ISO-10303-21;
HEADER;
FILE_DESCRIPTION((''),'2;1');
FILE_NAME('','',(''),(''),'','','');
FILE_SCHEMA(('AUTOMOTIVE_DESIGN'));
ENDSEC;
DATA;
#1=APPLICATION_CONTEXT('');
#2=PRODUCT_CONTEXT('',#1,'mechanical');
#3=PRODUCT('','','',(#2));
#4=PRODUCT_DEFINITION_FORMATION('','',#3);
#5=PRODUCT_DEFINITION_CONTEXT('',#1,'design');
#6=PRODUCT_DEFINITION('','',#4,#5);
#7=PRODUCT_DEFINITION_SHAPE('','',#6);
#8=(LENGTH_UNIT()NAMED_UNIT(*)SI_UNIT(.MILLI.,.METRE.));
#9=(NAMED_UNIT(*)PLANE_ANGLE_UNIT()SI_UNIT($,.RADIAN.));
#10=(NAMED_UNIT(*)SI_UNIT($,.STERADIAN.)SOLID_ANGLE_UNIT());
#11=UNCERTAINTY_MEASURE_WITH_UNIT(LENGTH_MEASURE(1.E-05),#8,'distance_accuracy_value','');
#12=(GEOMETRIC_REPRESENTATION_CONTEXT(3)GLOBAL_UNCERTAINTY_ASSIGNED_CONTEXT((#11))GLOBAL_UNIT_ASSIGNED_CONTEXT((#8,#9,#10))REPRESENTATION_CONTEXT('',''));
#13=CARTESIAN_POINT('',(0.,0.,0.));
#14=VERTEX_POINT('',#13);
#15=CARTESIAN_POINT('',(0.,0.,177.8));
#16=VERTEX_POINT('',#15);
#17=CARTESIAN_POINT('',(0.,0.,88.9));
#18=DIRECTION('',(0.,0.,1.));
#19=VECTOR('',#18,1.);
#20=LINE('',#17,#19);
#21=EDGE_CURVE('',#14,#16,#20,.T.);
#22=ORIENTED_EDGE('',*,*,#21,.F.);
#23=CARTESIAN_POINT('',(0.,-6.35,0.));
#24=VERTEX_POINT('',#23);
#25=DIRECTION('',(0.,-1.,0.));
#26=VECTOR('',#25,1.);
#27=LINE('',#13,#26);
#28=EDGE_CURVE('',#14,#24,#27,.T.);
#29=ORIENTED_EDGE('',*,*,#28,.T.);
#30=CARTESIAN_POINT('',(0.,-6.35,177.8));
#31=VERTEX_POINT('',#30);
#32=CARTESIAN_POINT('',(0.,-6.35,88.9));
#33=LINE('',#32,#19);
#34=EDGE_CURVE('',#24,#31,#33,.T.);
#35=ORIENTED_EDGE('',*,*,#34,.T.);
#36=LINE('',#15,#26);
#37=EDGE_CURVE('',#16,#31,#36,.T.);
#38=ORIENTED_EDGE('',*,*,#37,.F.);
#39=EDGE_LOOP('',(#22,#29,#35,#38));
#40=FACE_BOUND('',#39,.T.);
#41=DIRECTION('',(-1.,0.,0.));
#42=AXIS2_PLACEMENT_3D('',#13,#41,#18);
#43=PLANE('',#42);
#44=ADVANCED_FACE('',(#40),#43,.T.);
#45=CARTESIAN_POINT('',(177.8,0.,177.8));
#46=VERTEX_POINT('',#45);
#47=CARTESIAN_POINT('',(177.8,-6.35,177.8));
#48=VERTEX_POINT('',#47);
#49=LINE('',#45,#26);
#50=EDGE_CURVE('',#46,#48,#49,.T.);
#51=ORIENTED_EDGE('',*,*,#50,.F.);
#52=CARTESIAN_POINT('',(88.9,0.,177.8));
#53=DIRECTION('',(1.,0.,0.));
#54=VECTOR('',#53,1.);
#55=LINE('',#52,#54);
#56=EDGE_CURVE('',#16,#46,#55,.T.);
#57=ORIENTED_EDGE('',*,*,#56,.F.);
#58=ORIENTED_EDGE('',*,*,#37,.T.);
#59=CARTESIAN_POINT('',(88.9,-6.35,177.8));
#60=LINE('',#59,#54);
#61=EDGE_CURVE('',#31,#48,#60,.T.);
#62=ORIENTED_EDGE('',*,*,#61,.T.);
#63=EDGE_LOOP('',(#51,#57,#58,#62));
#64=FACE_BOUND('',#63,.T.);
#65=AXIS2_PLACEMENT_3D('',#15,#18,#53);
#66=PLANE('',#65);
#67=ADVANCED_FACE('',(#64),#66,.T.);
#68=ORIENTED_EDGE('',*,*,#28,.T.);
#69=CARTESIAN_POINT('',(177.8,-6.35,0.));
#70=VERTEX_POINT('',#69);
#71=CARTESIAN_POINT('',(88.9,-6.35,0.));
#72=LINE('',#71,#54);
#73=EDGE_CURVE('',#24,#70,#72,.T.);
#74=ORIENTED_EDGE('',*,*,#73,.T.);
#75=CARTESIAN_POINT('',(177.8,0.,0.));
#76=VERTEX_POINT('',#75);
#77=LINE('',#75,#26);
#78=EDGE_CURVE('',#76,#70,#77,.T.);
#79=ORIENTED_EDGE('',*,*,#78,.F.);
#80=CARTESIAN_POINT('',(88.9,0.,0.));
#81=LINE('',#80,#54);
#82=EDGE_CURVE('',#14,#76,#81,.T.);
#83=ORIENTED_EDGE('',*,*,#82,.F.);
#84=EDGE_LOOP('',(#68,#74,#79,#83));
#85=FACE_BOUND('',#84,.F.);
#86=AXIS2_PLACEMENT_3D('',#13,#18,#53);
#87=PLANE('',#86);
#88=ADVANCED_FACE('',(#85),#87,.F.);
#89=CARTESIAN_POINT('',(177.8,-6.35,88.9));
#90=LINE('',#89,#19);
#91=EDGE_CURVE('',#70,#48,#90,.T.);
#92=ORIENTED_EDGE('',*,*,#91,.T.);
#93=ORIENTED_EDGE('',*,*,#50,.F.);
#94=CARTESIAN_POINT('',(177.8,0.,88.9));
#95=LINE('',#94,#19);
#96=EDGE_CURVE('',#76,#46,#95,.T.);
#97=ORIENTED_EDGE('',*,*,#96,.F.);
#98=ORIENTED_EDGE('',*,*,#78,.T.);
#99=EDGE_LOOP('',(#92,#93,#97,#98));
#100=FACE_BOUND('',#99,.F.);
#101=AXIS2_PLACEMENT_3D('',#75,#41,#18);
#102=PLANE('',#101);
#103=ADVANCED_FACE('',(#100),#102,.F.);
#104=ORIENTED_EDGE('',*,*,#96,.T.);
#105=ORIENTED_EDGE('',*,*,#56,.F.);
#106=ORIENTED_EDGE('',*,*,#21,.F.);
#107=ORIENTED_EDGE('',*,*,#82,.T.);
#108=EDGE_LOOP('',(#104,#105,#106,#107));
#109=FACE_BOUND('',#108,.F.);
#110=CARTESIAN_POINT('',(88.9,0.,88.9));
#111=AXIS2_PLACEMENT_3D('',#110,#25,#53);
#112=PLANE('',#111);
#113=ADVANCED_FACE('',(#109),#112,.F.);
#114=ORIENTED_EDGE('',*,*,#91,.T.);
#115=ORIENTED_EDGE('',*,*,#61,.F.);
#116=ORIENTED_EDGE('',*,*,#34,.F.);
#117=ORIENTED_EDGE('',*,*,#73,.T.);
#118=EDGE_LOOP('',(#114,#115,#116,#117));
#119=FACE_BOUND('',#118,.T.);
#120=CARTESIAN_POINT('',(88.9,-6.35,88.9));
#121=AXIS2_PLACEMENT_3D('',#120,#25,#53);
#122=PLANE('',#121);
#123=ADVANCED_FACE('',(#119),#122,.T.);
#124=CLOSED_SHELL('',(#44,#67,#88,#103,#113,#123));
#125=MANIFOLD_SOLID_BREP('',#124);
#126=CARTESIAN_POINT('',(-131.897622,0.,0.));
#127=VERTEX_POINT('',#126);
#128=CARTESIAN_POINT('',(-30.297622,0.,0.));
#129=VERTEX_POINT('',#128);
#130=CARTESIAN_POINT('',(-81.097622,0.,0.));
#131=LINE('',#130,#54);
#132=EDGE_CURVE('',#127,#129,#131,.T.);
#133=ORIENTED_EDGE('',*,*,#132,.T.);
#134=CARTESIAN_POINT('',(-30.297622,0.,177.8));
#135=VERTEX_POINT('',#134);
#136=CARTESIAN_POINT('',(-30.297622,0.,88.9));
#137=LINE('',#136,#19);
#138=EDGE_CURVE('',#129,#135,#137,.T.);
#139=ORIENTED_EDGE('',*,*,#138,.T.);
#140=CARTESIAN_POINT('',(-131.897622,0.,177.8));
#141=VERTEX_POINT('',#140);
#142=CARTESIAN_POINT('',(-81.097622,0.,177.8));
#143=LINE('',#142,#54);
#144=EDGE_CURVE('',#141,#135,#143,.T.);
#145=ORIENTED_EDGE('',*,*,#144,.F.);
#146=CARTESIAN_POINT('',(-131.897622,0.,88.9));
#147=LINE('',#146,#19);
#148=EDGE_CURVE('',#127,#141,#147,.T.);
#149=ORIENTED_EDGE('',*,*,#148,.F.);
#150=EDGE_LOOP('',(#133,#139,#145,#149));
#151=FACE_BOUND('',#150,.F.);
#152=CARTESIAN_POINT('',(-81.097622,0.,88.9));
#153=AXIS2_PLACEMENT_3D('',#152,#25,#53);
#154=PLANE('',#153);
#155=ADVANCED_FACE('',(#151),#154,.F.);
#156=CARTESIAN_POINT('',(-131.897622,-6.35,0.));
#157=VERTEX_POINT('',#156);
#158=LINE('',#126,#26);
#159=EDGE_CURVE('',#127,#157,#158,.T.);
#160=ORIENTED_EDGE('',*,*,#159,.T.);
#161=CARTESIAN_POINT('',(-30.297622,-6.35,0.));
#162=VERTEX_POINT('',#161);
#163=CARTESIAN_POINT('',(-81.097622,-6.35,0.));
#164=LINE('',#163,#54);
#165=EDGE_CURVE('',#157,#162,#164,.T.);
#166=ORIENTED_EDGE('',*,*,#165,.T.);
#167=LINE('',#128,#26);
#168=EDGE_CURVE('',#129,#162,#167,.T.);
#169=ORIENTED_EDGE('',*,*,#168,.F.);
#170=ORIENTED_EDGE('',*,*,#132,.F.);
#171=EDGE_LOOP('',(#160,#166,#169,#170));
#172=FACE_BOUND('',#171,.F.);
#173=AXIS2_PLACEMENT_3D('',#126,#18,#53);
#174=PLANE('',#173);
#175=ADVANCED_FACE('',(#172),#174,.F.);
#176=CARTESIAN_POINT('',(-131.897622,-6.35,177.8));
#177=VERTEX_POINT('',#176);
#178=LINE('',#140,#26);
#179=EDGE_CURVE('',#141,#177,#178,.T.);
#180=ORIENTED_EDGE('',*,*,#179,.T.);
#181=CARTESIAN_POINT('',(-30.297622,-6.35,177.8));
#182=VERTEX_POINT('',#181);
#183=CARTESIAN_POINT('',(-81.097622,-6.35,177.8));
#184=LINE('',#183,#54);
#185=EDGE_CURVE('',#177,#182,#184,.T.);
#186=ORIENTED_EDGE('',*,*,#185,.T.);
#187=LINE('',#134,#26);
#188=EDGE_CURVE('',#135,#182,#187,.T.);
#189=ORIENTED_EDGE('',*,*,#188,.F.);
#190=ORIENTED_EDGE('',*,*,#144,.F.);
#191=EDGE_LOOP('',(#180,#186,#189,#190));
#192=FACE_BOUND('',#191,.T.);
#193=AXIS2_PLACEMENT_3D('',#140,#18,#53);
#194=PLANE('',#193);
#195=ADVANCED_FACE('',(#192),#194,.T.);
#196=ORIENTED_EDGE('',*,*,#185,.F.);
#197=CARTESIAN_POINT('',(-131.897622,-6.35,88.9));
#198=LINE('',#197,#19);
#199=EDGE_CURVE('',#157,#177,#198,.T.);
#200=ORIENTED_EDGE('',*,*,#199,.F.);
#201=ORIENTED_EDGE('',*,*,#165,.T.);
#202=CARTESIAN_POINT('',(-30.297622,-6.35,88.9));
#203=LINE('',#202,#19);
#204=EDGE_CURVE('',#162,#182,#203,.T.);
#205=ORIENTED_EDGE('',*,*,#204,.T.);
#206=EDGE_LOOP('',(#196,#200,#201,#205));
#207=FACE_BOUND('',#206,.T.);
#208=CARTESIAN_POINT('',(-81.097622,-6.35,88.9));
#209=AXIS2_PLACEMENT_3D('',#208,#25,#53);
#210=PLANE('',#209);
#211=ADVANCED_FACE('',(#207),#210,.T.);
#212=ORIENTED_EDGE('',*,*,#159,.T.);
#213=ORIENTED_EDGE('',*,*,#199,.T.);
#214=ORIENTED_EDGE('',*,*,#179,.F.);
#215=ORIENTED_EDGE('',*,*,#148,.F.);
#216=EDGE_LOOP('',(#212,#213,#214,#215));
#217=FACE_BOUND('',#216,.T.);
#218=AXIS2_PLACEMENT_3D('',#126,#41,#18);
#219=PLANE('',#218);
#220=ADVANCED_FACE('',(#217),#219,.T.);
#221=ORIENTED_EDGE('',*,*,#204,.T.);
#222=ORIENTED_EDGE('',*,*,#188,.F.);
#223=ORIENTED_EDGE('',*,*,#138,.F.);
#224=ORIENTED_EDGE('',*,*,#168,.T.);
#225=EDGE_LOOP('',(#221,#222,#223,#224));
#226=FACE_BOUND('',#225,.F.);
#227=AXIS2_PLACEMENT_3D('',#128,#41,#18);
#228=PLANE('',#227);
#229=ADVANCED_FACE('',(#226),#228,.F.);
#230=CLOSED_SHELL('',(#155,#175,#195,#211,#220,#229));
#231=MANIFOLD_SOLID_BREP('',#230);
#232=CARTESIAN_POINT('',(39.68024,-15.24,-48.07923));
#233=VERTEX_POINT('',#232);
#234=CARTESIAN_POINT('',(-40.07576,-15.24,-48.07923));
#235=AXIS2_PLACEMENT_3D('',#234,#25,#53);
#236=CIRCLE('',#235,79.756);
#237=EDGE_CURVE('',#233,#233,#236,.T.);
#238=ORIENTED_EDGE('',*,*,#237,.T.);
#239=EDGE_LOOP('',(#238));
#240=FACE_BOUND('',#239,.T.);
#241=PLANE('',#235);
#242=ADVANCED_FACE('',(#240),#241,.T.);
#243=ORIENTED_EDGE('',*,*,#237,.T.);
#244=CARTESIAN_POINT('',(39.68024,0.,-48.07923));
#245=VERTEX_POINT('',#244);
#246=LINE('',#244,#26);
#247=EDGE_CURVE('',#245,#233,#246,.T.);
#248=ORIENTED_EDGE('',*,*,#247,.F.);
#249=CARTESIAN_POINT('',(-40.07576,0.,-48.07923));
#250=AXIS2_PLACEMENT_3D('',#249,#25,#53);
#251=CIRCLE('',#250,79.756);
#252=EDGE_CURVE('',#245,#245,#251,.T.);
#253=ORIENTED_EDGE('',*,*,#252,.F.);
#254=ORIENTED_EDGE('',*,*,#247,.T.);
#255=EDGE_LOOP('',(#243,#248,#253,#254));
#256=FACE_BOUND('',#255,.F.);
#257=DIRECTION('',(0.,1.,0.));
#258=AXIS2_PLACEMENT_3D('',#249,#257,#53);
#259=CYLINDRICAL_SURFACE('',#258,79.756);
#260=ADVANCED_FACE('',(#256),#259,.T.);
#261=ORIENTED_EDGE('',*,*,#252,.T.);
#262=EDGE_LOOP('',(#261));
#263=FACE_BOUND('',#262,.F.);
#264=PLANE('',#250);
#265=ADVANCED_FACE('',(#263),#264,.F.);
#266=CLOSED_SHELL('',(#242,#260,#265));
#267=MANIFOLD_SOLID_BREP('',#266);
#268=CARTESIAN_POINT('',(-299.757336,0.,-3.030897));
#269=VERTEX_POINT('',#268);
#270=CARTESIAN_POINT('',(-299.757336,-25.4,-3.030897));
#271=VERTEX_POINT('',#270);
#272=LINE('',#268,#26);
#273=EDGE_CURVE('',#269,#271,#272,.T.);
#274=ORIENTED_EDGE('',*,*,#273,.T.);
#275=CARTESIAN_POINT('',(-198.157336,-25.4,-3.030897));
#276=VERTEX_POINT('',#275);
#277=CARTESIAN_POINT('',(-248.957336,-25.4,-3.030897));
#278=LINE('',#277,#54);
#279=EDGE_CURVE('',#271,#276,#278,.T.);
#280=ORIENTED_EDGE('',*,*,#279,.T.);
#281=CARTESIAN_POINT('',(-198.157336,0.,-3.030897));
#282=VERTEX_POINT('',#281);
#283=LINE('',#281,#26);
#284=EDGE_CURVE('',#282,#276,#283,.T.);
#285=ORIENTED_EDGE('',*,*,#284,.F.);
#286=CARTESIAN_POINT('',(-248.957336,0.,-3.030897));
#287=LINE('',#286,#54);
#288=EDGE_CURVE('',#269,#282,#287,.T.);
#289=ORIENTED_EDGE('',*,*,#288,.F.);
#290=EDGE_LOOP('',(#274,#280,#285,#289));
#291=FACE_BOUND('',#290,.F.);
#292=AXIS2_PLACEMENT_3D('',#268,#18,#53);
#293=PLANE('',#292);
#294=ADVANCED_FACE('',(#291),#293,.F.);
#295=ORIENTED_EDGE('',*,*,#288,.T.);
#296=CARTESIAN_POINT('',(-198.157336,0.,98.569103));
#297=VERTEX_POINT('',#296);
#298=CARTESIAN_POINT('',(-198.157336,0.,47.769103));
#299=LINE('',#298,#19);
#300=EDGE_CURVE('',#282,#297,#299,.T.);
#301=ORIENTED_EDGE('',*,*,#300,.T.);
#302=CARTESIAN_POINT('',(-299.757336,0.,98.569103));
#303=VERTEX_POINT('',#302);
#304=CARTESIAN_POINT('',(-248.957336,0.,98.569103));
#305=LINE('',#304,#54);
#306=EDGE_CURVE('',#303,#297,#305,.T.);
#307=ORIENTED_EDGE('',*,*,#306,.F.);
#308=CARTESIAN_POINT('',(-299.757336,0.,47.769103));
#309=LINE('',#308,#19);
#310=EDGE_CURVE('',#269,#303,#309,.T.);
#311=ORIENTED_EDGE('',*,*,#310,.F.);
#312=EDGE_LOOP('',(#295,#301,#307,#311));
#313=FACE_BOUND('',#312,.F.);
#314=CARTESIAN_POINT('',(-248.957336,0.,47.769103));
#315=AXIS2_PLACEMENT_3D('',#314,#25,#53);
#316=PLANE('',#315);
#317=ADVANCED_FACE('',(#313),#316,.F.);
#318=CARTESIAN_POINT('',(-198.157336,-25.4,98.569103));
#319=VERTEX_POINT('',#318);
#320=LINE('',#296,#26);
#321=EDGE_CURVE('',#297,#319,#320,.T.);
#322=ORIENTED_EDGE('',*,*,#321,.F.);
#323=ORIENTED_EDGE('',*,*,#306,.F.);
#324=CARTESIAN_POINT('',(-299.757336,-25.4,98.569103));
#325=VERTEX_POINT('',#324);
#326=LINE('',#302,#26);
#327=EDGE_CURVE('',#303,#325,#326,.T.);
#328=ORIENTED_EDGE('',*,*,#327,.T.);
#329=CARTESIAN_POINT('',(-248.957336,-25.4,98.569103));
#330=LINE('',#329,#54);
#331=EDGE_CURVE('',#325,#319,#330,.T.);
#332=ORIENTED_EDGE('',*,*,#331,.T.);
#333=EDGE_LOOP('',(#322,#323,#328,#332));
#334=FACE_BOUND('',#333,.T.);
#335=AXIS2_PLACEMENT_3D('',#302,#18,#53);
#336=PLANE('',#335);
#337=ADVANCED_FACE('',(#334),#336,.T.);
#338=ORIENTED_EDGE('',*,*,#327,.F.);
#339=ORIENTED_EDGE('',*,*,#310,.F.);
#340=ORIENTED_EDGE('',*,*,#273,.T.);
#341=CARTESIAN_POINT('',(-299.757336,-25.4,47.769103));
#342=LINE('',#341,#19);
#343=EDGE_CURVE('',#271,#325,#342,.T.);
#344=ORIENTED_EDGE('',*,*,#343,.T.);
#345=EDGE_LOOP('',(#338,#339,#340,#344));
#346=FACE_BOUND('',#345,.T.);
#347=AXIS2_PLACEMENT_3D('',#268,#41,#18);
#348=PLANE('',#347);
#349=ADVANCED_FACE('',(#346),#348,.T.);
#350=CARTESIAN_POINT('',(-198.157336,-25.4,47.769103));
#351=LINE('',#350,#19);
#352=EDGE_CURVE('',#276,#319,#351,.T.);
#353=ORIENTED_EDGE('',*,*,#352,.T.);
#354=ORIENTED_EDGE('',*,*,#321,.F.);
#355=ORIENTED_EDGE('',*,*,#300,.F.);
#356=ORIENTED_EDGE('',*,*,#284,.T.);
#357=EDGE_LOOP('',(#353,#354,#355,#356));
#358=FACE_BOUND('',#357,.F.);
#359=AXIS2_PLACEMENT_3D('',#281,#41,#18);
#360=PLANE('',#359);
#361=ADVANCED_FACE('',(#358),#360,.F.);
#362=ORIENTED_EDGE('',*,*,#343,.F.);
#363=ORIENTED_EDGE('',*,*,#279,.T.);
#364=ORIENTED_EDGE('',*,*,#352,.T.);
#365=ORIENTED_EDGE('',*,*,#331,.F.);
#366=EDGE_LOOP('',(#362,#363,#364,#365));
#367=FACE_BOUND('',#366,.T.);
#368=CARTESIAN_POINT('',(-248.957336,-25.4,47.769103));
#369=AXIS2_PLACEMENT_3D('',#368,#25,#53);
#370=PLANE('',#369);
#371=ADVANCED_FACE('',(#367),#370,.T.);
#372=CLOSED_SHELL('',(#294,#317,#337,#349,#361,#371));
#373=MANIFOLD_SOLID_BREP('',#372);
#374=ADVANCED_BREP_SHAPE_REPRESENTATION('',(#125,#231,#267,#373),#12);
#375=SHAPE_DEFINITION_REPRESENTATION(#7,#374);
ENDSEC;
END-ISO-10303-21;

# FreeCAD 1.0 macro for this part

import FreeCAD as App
import Part
import Sketcher
from FreeCAD import Vector
Q = App.Units.Quantity


def add_polygon(sketch, points):
    """Adds a closed chain of lines whose ends are joined by coincident constraints."""
    first, n = sketch.GeometryCount, len(points)
    for a, b in zip(points, points[1:] + points[:1]):
        sketch.addGeometry(Part.LineSegment(App.Vector(*a, 0), App.Vector(*b, 0)), False)
    for i in range(n):
        sketch.addConstraint(Sketcher.Constraint("Coincident", first + i, 2, first + (i + 1) % n, 1))

doc = App.newDocument("Part")
body = doc.addObject("PartDesign::Body", "Body")

# Sketch on XZ plane
sketch1 = body.newObject("Sketcher::SketchObject", "Sketch")
sketch1.AttachmentSupport = (doc.getObject("XZ_Plane"), [""])
sketch1.MapMode = "FlatFace"
add_polygon(sketch1, [(0, 177.8), (0, 0), (177.8, 0), (177.8, 177.8)])  # lines 0-3
sketch1.addConstraint(Sketcher.Constraint("Vertical", 0))
sketch1.addConstraint(Sketcher.Constraint("Horizontal", 1))
sketch1.addConstraint(Sketcher.Constraint("Vertical", 2))
sketch1.addConstraint(Sketcher.Constraint("Horizontal", 3))
sketch1.addConstraint(Sketcher.Constraint("Coincident", 0, 2, -1, 1))
sketch1.addConstraint(Sketcher.Constraint("Equal", 3, 0))
sketch1.addConstraint(Sketcher.Constraint("DistanceX", 1, 1, 1, 2, Q("7 in")))
pad1 = body.newObject("PartDesign::Pad", "Pad")
pad1.Profile = sketch1
pad1.Length = Q("0.25 in")
body2 = doc.addObject("PartDesign::Body", "Body001")

# Sketch on XZ plane
sketch2 = body2.newObject("Sketcher::SketchObject", "Sketch001")
sketch2.AttachmentSupport = (doc.getObject("XZ_Plane001"), [""])
sketch2.MapMode = "FlatFace"
add_polygon(sketch2, [(-131.897622, 177.8), (-131.897622, 0), (-30.297622, 0), (-30.297622, 177.8)])  # lines 0-3
sketch2.addConstraint(Sketcher.Constraint("Vertical", 0))
sketch2.addConstraint(Sketcher.Constraint("Horizontal", 1))
sketch2.addConstraint(Sketcher.Constraint("Vertical", 2))
sketch2.addConstraint(Sketcher.Constraint("Horizontal", 3))
sketch2.addConstraint(Sketcher.Constraint("PointOnObject", 0, 2, -1))
sketch2.addConstraint(Sketcher.Constraint("DistanceX", 1, 1, 1, 2, Q("4 in")))
sketch2.addConstraint(Sketcher.Constraint("DistanceY", 0, 2, 0, 1, Q("7 in")))
sketch2.addConstraint(Sketcher.Constraint("DistanceX", 0, 2, -1, 1, Q("131.897622 mm")))
pad2 = body2.newObject("PartDesign::Pad", "Pad001")
pad2.Profile = sketch2
pad2.Length = Q("0.25 in")
body3 = doc.addObject("PartDesign::Body", "Body002")

# Sketch on XZ plane
sketch3 = body3.newObject("Sketcher::SketchObject", "Sketch002")
sketch3.AttachmentSupport = (doc.getObject("XZ_Plane002"), [""])
sketch3.MapMode = "FlatFace"
sketch3.addGeometry(Part.Circle(Vector(-40.07576, -48.07923, 0), Vector(0, 0, 1), 79.756), False)
sketch3.addConstraint(Sketcher.Constraint("Diameter", 0, Q("6.28 in")))
sketch3.addConstraint(Sketcher.Constraint("DistanceX", 0, 3, -1, 1, Q("40.07576 mm")))
sketch3.addConstraint(Sketcher.Constraint("DistanceY", 0, 3, -1, 1, Q("48.07923 mm")))
pad3 = body3.newObject("PartDesign::Pad", "Pad002")
pad3.Profile = sketch3
pad3.Length = Q("0.6 in")
body4 = doc.addObject("PartDesign::Body", "Body003")

# Sketch on XZ plane
sketch4 = body4.newObject("Sketcher::SketchObject", "Sketch003")
sketch4.AttachmentSupport = (doc.getObject("XZ_Plane003"), [""])
sketch4.MapMode = "FlatFace"
add_polygon(sketch4, [(-299.757336, 98.569103), (-299.757336, -3.030897), (-198.157336, -3.030897), (-198.157336, 98.569103)])  # lines 0-3
sketch4.addConstraint(Sketcher.Constraint("Vertical", 0))
sketch4.addConstraint(Sketcher.Constraint("Horizontal", 1))
sketch4.addConstraint(Sketcher.Constraint("Vertical", 2))
sketch4.addConstraint(Sketcher.Constraint("Horizontal", 3))
sketch4.addConstraint(Sketcher.Constraint("Equal", 3, 0))
sketch4.addConstraint(Sketcher.Constraint("DistanceX", 1, 1, 1, 2, Q("4 in")))
sketch4.addConstraint(Sketcher.Constraint("DistanceX", 0, 2, -1, 1, Q("299.757336 mm")))
sketch4.addConstraint(Sketcher.Constraint("DistanceY", 0, 2, -1, 1, Q("3.030897 mm")))
pad4 = body4.newObject("PartDesign::Pad", "Pad003")
pad4.Profile = sketch4
pad4.Length = Q("1 in")

doc.recompute()
